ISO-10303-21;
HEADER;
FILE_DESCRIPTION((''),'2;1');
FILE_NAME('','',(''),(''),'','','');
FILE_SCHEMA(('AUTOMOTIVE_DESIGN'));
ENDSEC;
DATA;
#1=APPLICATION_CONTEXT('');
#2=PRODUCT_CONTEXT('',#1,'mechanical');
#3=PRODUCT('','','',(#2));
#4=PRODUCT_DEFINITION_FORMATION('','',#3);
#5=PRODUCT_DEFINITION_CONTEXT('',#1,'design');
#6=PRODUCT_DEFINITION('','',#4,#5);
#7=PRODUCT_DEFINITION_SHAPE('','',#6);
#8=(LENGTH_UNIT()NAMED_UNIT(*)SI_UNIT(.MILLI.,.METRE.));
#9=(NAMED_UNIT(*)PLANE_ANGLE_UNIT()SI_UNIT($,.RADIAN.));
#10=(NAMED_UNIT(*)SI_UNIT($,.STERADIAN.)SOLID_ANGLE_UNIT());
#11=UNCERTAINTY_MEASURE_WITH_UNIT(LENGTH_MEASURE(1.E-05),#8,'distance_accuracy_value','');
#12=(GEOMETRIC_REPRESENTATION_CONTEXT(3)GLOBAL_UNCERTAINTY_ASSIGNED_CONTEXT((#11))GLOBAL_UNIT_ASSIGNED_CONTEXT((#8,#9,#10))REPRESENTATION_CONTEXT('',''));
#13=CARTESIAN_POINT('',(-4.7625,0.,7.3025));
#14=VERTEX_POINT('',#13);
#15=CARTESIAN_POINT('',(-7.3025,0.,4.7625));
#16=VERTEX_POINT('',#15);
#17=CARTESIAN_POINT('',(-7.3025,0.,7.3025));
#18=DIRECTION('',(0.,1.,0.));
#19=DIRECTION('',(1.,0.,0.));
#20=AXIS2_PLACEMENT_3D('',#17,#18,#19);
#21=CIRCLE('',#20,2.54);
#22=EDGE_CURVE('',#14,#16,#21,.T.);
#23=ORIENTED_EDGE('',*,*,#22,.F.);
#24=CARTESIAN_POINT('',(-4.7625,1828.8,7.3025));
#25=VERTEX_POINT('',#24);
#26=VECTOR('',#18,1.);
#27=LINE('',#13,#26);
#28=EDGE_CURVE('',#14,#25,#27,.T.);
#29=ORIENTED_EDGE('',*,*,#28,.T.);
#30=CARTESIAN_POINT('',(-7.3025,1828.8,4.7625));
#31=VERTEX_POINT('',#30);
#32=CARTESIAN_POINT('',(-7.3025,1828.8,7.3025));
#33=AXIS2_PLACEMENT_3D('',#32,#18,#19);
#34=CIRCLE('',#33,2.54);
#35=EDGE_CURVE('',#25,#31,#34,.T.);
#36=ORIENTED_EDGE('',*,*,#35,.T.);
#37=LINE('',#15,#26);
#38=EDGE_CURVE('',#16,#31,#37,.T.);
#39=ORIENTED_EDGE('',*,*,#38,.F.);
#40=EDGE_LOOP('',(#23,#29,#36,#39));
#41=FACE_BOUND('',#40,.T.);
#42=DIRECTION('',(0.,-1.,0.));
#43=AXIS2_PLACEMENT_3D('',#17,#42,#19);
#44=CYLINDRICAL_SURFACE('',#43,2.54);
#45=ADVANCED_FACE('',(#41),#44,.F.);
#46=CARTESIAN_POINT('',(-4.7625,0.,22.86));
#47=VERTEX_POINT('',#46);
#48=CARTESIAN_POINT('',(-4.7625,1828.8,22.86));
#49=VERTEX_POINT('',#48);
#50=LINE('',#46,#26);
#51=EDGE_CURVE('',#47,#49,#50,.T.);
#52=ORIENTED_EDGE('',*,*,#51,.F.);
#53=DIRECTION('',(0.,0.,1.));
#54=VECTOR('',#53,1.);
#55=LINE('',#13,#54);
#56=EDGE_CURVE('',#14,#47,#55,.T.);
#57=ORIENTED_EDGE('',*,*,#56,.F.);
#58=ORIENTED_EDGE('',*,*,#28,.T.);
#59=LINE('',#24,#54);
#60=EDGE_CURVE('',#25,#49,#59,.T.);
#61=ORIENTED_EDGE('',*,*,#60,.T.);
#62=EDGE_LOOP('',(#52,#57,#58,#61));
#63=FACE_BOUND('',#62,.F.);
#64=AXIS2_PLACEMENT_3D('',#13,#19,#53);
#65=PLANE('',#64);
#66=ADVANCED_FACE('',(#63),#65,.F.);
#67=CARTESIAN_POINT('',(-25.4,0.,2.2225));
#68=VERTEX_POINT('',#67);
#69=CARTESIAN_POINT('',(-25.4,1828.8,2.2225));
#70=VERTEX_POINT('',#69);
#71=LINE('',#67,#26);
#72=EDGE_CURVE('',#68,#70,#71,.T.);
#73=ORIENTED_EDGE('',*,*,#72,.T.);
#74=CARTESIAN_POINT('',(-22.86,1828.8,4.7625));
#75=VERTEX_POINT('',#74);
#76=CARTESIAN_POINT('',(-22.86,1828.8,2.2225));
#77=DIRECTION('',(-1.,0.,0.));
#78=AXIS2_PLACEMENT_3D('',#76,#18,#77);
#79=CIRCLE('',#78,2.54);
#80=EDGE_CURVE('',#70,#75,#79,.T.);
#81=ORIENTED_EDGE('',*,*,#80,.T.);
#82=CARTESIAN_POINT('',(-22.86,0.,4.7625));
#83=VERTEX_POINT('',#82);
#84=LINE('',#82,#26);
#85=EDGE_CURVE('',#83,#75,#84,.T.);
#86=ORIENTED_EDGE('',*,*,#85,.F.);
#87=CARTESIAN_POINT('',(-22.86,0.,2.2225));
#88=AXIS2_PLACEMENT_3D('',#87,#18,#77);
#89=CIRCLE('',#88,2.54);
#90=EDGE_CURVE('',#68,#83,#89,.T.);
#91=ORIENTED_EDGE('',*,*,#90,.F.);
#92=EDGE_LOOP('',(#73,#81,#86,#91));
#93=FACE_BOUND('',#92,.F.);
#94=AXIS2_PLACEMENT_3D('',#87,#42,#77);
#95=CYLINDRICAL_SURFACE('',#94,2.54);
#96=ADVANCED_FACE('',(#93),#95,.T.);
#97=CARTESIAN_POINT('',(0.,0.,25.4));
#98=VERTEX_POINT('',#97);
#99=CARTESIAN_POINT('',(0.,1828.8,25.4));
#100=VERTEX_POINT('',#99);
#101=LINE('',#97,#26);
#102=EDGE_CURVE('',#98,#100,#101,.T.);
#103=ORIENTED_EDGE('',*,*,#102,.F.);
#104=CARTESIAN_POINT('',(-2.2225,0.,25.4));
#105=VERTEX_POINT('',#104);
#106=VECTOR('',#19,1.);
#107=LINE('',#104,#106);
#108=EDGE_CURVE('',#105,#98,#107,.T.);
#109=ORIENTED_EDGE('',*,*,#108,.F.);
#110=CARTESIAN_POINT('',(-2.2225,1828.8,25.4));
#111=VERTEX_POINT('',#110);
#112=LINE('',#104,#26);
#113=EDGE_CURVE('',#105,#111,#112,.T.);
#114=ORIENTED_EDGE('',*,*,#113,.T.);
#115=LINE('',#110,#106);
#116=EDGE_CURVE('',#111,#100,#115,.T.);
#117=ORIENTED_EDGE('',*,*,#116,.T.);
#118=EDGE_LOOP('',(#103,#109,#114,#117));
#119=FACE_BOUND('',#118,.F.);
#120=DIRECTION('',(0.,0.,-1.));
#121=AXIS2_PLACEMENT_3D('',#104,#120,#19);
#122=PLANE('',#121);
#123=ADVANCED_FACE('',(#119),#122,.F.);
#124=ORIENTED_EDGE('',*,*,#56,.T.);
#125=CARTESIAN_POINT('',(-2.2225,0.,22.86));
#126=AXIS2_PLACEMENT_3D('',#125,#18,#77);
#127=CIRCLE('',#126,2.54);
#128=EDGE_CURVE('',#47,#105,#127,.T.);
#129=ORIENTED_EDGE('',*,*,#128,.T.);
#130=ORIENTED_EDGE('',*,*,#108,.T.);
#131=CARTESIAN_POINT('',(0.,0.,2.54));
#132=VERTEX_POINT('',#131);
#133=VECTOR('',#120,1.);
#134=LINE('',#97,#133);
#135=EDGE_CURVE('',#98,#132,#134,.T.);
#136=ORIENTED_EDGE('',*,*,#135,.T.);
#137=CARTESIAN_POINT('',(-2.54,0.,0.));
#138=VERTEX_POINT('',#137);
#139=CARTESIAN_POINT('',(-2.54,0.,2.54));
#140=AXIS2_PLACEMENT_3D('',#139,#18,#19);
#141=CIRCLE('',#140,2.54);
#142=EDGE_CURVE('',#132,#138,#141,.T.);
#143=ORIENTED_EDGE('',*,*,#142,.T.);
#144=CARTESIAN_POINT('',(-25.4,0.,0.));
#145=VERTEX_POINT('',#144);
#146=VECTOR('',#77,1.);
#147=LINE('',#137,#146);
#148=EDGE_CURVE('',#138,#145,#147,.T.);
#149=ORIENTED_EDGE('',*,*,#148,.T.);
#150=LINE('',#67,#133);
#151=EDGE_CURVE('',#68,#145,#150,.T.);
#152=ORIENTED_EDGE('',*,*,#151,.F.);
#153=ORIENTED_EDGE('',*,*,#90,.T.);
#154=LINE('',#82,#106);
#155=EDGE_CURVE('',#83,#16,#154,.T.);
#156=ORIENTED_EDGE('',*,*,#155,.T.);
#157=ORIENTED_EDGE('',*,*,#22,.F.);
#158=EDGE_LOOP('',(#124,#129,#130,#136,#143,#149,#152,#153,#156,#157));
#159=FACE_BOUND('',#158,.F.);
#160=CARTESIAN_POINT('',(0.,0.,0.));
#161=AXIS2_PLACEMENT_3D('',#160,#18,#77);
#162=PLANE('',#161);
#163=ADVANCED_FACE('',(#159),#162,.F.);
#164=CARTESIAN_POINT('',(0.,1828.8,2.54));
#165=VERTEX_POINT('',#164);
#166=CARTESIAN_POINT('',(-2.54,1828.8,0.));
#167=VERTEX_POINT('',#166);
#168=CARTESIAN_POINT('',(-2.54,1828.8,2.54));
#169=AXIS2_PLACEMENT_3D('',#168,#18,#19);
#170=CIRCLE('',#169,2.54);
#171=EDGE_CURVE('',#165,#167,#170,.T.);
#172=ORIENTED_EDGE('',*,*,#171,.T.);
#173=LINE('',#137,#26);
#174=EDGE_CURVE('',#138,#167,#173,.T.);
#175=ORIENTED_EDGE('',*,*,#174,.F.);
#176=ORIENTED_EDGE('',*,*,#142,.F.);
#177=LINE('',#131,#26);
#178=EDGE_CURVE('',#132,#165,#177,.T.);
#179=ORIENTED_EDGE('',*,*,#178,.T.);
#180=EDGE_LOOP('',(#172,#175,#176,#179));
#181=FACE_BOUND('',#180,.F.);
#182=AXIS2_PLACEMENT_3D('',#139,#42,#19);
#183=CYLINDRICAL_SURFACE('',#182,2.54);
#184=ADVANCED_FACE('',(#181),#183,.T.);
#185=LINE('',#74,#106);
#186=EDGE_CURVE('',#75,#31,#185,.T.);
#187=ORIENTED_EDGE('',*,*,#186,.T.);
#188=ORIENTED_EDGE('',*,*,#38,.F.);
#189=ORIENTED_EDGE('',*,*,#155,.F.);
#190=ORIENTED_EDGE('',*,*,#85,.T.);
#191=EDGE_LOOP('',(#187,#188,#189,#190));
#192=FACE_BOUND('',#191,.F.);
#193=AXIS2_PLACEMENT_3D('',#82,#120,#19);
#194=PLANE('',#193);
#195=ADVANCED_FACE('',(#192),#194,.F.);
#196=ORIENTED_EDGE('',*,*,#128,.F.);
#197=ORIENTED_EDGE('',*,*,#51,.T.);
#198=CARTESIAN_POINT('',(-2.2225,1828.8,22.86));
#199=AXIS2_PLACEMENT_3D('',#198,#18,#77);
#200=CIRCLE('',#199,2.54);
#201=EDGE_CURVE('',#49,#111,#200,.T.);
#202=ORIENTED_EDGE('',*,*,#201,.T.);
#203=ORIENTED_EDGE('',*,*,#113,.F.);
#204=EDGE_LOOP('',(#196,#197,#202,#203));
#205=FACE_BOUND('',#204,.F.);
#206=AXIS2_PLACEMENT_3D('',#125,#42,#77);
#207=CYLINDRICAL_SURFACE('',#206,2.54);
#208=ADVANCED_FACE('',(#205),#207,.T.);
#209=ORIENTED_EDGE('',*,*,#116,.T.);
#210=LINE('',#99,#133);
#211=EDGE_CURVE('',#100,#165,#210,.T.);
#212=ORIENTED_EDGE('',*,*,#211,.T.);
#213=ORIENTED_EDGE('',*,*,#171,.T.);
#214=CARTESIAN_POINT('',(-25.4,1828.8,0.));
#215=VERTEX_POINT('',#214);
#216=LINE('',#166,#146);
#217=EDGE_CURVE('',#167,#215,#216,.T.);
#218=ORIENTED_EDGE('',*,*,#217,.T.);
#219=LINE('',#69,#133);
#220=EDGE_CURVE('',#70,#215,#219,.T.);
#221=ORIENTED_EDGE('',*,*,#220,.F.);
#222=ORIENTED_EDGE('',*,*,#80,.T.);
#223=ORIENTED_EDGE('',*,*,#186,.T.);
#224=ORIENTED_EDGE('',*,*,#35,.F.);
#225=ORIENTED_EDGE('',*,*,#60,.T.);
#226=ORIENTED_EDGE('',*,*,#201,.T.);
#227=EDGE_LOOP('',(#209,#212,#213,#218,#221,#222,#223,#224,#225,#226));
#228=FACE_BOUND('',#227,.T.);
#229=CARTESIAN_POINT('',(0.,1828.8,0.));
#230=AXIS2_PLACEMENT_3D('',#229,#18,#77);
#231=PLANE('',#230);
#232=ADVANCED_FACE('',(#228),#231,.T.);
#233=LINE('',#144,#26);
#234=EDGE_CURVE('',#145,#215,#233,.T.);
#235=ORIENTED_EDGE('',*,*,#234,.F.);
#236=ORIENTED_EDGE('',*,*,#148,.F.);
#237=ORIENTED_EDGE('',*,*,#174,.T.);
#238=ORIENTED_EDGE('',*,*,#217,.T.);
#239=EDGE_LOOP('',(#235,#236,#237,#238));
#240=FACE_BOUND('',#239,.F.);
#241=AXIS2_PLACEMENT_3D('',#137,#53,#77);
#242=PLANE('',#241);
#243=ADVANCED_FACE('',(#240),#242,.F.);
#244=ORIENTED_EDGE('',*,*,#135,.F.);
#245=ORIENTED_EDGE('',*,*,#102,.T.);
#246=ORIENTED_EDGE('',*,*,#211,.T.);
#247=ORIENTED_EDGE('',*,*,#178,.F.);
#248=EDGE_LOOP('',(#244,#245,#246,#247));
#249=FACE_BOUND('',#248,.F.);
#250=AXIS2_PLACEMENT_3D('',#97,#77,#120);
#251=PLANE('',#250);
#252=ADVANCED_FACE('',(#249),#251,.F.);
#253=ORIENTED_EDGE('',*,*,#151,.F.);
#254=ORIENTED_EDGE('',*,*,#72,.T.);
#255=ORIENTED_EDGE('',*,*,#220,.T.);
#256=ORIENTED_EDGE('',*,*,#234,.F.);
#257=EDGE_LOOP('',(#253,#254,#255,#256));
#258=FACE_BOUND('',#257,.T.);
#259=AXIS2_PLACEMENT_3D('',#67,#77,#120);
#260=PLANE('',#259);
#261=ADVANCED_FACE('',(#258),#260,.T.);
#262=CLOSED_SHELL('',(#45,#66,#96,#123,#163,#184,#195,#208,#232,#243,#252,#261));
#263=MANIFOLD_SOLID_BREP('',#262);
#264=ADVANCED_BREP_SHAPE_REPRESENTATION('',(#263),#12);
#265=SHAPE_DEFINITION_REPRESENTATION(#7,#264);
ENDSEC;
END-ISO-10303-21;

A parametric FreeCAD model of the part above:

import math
import FreeCAD as App
import Part
import Sketcher
from FreeCAD import Vector
Q = App.Units.Quantity

doc = App.newDocument("Part")
params = doc.addObject("Spreadsheet::Sheet", "Params")
for row, (alias, value) in enumerate([
    ("sketch1_radius", "0.1 in"),
    ("pad1_length", "72 in"),
], start=1):
    params.set(f"A{row}", alias)
    params.set(f"B{row}", "=" + value)
    params.setAlias(f"B{row}", alias)

body = doc.addObject("PartDesign::Body", "Body")

sketch1 = body.newObject("Sketcher::SketchObject", "Sketch")
sketch1.AttachmentSupport = (doc.getObject("XZ_Plane"), [""])
sketch1.MapMode = "FlatFace"
sketch1.addGeometry([
    Part.ArcOfCircle(Part.Circle(Vector(-2.5, 2.5, 0), Vector(0, 0, 1), 2.5), math.radians(-90), math.radians(0)),
    Part.LineSegment(Vector(-2.5, 0, 0), Vector(-25.4, 0, 0)),
    Part.LineSegment(Vector(-25.4, 0, 0), Vector(-25.4, 2.2, 0)),
    Part.ArcOfCircle(Part.Circle(Vector(-22.9, 2.2, 0), Vector(0, 0, 1), 2.5), math.radians(90), math.radians(180)),
    Part.LineSegment(Vector(-22.9, 4.8, 0), Vector(-7.3, 4.8, 0)),
    Part.ArcOfCircle(Part.Circle(Vector(-7.3, 7.3, 0), Vector(0, 0, 1), 2.5), math.radians(-90), math.radians(0)),
    Part.LineSegment(Vector(-4.8, 7.3, 0), Vector(-4.8, 22.9, 0)),
    Part.ArcOfCircle(Part.Circle(Vector(-2.2, 22.9, 0), Vector(0, 0, 1), 2.5), math.radians(90), math.radians(180)),
    Part.LineSegment(Vector(-2.2, 25.4, 0), Vector(0, 25.4, 0)),
    Part.LineSegment(Vector(0, 25.4, 0), Vector(0, 2.5, 0)),
], False)
sketch1.addConstraint([
    Sketcher.Constraint("Tangent", 0, 1, 1, 1),
    Sketcher.Constraint("Coincident", 1, 2, 2, 1),
    Sketcher.Constraint("Tangent", 2, 2, 3, 2),
    Sketcher.Constraint("Tangent", 3, 1, 4, 1),
    Sketcher.Constraint("Tangent", 4, 2, 5, 1),
    Sketcher.Constraint("Tangent", 5, 2, 6, 1),
    Sketcher.Constraint("Tangent", 6, 2, 7, 2),
    Sketcher.Constraint("Tangent", 7, 1, 8, 1),
    Sketcher.Constraint("Coincident", 8, 2, 9, 1),
    Sketcher.Constraint("Tangent", 9, 2, 0, 2),
    Sketcher.Constraint("Horizontal", 1),
    Sketcher.Constraint("Vertical", 2),
    Sketcher.Constraint("Horizontal", 4),
    Sketcher.Constraint("Vertical", 6),
    Sketcher.Constraint("Horizontal", 8),
    Sketcher.Constraint("Vertical", 9),
    Sketcher.Constraint("Equal", 0, 3),
    Sketcher.Constraint("Equal", 3, 5),
    Sketcher.Constraint("Equal", 5, 7),
    Sketcher.Constraint("PointOnObject", 0, 1, -1),
    Sketcher.Constraint("PointOnObject", 8, 2, -2),
    Sketcher.Constraint("Equal", 8, 2),
    Sketcher.Constraint("Equal", 4, 6),
    Sketcher.Constraint("Radius", 0, Q("0.1 in")),
    Sketcher.Constraint("DistanceX", 1, 2, -1, 1, Q("1 in")),
    Sketcher.Constraint("DistanceY", -1, 1, 3, 1, Q("0.1875 in")),
])
sketch1.setExpression("Constraints[23]", "Params.sketch1_radius")
pad1 = body.newObject("PartDesign::Pad", "Pad")
pad1.Profile = sketch1
pad1.setExpression("Length", "Params.pad1_length")
pad1.Reversed = True

doc.recompute()
